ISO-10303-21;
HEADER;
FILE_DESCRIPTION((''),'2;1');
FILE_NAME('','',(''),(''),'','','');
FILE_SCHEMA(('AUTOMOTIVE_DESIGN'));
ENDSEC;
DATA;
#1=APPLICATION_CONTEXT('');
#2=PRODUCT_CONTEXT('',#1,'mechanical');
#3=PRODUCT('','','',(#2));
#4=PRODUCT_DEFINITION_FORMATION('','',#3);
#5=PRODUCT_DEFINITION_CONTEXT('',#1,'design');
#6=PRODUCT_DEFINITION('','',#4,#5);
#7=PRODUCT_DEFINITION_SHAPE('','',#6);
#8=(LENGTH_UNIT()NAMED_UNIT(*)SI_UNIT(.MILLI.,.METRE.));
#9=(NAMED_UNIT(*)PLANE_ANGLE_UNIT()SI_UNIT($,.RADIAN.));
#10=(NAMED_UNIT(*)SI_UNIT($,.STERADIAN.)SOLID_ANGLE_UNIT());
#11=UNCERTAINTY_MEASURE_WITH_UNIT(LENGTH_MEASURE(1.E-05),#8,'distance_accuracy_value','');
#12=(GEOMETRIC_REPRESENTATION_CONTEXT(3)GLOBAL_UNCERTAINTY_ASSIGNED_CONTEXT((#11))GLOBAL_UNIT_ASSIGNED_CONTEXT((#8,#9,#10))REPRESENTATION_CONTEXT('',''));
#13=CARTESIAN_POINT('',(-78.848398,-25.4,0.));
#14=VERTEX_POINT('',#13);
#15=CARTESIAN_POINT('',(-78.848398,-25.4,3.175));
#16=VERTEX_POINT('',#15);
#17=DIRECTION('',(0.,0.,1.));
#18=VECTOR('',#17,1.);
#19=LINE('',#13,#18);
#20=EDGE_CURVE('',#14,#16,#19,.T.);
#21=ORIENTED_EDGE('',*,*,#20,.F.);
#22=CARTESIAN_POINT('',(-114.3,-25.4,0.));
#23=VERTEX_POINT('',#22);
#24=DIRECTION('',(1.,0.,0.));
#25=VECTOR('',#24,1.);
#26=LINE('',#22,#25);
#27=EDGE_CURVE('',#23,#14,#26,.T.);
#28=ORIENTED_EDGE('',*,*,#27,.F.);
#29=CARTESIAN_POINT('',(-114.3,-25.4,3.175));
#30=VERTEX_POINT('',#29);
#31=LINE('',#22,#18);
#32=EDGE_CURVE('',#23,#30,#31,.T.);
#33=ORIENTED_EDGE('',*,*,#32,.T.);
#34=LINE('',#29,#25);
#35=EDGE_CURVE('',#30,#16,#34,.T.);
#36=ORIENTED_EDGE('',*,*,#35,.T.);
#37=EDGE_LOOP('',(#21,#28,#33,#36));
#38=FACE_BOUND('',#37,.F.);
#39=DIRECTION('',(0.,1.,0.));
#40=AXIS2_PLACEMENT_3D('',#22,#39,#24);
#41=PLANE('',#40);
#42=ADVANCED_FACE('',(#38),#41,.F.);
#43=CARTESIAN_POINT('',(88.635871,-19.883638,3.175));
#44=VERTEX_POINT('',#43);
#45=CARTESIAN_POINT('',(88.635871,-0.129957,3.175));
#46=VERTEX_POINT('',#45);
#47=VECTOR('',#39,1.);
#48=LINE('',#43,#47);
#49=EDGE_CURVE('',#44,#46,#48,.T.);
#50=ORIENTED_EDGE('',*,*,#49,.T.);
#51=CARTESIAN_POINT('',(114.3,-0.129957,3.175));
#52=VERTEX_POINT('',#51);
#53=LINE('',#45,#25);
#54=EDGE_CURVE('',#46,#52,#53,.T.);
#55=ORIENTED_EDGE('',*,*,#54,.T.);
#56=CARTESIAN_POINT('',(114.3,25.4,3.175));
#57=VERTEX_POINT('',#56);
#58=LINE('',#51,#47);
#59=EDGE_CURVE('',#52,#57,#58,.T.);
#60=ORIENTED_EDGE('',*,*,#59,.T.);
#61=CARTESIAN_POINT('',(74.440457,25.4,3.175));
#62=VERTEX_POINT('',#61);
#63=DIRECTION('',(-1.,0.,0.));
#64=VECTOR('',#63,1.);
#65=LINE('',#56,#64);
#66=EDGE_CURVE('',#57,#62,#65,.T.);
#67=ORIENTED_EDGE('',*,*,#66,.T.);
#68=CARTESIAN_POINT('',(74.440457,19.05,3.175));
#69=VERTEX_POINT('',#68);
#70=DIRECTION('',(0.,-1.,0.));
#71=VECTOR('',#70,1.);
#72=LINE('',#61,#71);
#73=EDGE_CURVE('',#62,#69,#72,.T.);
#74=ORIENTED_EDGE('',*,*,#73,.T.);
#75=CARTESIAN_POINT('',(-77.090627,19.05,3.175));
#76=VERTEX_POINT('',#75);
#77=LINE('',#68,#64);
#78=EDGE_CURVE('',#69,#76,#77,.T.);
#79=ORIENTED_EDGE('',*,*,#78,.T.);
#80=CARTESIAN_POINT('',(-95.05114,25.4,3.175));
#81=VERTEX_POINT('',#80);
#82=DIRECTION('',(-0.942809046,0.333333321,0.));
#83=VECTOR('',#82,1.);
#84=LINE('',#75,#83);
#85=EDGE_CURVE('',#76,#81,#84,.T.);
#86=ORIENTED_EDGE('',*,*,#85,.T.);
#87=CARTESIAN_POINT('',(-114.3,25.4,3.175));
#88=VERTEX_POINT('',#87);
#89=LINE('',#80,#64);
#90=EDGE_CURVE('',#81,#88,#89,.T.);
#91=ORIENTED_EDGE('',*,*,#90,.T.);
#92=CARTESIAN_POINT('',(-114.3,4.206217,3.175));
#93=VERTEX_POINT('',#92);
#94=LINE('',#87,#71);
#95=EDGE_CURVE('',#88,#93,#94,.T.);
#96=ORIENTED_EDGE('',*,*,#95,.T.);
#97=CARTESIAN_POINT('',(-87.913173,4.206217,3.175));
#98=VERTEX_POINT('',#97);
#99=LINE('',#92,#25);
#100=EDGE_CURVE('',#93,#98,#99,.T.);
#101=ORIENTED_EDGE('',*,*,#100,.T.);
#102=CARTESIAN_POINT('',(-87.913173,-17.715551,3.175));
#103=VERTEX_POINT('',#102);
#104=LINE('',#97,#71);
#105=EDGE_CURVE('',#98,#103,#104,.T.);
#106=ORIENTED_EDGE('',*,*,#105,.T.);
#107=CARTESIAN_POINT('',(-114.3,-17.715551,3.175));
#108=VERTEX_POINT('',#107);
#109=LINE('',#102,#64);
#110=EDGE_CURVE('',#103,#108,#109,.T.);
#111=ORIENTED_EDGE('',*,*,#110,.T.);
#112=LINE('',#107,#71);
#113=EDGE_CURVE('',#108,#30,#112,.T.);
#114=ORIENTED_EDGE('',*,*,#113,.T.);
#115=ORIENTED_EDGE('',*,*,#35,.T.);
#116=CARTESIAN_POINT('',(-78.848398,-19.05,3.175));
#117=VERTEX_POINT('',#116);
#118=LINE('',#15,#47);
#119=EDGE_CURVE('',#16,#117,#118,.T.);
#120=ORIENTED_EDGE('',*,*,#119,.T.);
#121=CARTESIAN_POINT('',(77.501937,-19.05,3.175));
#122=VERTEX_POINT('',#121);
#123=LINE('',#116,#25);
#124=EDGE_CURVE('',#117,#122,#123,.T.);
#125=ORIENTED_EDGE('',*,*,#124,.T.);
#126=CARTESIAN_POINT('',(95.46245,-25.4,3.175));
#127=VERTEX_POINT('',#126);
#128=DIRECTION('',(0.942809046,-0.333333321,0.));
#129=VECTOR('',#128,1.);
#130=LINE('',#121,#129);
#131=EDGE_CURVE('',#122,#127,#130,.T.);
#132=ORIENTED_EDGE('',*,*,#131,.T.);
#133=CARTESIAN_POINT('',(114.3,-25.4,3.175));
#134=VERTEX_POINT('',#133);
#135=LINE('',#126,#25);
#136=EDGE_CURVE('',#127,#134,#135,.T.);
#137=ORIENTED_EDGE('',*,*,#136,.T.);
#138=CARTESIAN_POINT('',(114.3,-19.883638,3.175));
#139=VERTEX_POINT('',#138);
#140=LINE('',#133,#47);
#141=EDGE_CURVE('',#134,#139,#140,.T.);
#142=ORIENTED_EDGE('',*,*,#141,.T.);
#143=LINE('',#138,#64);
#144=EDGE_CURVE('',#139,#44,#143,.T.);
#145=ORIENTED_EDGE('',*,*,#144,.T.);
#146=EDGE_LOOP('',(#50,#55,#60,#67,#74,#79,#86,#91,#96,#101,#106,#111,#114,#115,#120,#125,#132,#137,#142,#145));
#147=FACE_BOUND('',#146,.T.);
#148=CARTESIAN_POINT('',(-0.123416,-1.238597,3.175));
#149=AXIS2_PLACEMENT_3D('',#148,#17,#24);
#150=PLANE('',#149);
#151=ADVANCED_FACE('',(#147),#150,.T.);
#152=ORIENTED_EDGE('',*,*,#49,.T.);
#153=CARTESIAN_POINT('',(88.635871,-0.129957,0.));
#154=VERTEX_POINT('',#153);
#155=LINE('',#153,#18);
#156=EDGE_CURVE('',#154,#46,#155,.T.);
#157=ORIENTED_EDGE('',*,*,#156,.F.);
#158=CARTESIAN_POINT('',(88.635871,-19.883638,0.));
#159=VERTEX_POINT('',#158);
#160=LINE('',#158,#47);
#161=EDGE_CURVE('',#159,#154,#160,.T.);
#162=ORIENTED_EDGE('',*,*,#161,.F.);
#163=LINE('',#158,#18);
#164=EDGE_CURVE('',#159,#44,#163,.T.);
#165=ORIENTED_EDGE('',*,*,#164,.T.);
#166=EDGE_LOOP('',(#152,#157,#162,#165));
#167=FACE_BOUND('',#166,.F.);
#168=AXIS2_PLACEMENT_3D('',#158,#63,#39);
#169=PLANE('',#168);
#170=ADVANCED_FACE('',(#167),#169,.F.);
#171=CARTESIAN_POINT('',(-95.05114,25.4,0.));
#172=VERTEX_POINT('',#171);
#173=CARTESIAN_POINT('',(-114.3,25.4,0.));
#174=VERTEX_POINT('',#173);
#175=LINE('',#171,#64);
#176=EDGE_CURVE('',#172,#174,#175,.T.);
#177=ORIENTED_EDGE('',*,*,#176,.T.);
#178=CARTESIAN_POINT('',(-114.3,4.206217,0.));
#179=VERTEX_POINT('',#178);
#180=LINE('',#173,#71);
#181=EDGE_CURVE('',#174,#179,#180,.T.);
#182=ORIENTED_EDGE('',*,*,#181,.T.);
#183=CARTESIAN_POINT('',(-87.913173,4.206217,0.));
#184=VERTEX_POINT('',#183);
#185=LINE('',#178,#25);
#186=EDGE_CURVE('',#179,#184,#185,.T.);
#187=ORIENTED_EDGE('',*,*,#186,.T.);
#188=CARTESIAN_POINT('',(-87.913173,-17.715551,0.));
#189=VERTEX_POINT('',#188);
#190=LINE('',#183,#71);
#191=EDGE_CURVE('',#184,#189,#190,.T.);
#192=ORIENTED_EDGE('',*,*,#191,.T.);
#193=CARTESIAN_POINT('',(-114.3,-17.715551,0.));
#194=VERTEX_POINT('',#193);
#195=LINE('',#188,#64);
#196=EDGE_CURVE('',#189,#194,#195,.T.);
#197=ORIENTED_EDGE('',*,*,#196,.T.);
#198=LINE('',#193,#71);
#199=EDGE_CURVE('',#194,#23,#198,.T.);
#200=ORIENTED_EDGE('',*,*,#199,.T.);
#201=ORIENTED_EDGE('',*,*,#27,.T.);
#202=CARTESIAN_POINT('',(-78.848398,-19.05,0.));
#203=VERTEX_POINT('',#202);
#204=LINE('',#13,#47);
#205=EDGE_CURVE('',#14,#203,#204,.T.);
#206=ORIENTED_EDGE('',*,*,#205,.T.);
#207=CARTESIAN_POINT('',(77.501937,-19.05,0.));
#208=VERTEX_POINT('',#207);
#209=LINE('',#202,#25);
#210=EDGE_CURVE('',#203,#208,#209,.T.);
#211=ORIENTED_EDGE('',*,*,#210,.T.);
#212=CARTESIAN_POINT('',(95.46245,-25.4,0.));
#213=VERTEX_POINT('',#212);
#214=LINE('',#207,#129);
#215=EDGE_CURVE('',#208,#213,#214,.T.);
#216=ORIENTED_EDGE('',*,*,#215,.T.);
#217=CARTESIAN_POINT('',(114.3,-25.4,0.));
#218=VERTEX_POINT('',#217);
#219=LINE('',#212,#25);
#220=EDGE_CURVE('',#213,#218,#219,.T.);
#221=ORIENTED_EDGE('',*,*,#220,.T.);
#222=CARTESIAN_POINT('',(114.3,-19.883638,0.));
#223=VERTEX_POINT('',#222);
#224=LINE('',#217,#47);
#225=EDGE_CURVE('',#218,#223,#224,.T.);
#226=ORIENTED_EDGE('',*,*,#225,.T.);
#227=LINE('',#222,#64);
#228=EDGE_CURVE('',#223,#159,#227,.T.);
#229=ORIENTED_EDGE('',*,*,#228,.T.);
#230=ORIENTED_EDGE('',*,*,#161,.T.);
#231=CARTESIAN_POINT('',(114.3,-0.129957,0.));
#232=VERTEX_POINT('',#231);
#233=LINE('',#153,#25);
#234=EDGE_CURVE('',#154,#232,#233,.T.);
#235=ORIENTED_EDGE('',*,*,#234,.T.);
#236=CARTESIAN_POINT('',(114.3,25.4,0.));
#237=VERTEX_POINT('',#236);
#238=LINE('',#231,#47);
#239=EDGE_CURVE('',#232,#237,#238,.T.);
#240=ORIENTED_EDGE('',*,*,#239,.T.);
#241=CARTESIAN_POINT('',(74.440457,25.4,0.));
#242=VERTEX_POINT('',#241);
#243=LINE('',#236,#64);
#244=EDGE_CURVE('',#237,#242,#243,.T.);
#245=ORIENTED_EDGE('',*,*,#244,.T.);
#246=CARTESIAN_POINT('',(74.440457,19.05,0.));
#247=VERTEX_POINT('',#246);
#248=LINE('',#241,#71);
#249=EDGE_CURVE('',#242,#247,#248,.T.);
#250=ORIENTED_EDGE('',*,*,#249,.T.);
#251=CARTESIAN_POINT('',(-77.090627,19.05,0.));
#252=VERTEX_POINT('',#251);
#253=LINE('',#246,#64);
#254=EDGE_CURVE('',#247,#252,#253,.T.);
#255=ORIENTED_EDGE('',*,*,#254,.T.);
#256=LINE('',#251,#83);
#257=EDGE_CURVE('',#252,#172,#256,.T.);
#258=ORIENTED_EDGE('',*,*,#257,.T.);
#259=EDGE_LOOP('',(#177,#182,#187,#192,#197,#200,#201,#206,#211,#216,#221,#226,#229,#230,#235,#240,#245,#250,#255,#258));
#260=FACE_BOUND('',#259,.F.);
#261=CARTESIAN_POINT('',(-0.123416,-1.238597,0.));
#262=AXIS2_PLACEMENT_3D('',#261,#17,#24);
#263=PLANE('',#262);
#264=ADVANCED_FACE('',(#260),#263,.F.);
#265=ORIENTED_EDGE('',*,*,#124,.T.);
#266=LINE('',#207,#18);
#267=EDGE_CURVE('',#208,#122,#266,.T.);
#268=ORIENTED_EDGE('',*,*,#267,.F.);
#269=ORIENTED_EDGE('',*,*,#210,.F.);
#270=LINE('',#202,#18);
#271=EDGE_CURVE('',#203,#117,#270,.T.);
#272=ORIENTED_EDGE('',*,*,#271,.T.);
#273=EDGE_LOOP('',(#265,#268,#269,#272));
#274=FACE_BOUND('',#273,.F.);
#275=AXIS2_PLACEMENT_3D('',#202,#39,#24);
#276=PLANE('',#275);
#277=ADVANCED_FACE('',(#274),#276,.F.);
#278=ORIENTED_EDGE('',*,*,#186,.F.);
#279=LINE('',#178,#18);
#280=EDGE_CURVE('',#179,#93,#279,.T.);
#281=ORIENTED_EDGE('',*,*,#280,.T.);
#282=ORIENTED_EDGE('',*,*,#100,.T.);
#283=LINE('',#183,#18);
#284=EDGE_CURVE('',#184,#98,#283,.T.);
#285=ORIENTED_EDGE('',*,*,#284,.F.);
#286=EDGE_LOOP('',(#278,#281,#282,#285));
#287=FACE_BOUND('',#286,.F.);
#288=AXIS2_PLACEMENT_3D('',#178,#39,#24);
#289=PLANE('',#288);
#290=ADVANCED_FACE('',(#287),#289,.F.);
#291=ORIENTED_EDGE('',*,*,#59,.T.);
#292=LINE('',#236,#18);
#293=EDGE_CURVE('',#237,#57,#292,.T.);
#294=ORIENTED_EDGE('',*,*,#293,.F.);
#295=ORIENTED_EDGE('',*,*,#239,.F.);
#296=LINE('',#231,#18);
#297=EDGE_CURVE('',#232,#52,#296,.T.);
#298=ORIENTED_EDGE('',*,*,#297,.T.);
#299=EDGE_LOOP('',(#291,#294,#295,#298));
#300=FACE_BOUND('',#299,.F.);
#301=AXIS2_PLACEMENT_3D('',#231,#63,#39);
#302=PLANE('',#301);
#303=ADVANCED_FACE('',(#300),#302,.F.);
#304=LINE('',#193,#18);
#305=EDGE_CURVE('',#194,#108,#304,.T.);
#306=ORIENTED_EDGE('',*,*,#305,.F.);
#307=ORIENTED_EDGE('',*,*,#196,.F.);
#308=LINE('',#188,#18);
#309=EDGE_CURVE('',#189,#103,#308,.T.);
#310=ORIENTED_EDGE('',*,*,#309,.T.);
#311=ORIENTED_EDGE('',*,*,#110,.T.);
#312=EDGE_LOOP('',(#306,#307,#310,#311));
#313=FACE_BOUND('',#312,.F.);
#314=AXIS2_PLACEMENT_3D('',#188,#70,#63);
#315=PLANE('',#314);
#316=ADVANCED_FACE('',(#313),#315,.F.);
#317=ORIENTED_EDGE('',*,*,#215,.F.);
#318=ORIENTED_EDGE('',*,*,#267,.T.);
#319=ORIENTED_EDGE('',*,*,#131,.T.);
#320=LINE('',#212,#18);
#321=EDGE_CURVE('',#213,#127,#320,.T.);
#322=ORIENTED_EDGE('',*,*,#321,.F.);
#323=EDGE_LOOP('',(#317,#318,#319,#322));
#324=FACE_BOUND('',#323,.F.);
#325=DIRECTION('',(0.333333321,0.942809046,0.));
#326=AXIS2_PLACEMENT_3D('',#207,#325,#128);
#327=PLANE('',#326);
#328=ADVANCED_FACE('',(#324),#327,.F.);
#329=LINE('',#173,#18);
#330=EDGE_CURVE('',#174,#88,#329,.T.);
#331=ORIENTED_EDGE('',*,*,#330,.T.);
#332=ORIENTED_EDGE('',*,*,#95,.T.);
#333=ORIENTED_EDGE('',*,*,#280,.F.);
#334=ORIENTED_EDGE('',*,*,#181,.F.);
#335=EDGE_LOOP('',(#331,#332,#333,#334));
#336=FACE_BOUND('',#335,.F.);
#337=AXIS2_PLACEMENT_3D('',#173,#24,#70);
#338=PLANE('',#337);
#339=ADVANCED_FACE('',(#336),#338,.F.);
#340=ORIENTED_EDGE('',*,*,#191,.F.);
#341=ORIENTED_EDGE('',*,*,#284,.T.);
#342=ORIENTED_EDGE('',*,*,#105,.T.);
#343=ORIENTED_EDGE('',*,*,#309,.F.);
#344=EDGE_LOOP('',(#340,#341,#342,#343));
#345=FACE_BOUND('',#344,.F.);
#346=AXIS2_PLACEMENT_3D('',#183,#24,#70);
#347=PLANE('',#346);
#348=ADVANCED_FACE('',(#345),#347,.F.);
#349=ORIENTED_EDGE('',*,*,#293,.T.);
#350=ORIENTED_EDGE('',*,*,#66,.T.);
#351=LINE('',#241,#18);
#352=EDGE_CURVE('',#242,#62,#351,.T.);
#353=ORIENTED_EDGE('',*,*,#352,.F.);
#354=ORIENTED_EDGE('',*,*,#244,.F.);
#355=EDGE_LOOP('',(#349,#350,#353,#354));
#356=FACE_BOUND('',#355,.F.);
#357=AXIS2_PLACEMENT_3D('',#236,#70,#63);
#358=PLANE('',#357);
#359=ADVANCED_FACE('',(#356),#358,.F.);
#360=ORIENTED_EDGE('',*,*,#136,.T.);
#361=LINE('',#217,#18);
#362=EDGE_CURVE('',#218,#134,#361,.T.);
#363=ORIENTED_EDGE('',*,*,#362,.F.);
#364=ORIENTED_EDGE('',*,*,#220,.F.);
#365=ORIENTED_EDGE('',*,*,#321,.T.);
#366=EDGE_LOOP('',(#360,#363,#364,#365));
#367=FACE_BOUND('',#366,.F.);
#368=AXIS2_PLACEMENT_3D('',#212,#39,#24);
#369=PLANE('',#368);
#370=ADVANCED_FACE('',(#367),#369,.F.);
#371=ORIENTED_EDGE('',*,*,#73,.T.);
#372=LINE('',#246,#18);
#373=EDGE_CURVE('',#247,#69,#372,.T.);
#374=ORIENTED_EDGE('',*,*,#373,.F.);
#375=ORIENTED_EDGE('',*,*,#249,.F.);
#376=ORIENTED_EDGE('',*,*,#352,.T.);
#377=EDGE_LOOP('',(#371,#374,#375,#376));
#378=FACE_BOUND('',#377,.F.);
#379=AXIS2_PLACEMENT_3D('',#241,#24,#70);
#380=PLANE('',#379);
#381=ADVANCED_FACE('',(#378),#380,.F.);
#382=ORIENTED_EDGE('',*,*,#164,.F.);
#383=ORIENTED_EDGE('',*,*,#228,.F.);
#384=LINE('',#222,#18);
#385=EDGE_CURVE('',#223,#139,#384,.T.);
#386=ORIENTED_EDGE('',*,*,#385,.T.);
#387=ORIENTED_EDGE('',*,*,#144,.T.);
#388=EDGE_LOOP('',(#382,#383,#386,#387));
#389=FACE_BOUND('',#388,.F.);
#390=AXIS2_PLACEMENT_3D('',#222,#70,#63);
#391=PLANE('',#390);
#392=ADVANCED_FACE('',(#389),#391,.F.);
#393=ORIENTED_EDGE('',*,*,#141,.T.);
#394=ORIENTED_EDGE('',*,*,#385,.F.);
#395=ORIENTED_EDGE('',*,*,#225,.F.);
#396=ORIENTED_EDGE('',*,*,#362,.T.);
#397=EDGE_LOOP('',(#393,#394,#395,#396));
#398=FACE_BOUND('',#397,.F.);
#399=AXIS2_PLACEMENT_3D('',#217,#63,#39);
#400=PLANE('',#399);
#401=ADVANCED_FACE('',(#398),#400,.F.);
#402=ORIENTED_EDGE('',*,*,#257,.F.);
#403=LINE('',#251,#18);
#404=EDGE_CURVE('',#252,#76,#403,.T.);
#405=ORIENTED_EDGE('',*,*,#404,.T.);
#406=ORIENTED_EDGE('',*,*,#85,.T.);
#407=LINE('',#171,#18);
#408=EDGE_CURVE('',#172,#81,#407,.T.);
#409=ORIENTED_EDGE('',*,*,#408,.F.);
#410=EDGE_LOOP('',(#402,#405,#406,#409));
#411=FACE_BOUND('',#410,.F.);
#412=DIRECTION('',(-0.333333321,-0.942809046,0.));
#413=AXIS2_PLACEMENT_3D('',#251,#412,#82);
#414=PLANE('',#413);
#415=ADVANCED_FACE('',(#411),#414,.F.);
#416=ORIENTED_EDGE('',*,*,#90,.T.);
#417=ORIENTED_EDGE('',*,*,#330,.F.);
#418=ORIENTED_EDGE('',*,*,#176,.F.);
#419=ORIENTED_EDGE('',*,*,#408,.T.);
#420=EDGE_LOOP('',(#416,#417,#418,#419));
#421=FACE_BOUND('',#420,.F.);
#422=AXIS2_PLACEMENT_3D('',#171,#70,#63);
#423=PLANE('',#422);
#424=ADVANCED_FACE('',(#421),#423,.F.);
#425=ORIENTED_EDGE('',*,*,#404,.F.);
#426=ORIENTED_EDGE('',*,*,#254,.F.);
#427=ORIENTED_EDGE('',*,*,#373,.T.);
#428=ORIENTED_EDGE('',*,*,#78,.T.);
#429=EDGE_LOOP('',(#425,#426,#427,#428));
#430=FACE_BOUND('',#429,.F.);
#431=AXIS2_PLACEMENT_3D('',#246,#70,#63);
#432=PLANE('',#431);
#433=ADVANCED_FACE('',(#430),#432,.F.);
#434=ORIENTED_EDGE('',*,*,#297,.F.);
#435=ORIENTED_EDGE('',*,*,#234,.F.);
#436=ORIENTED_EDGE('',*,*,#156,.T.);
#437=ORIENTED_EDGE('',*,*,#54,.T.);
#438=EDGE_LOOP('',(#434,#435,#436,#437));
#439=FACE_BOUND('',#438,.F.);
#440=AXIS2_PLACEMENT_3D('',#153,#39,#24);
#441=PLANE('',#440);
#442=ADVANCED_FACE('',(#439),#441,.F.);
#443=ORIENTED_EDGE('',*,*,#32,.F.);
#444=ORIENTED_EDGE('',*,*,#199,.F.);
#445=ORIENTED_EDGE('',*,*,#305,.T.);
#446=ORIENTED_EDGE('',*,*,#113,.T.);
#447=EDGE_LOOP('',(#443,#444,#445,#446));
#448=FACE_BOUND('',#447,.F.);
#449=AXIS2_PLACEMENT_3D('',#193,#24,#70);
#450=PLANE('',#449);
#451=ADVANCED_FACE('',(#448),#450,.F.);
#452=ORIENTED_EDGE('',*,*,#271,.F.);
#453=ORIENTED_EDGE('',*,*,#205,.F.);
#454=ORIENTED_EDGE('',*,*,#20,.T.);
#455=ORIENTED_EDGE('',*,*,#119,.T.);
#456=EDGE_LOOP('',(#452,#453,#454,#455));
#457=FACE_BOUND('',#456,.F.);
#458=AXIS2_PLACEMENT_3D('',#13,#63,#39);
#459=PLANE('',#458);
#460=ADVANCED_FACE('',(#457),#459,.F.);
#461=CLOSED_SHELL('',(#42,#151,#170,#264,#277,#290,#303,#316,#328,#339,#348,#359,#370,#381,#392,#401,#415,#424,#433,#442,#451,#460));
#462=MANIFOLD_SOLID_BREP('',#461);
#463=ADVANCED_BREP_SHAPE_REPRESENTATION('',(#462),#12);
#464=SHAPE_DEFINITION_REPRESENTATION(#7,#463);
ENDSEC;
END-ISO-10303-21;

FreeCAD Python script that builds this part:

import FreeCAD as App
import Part
import Sketcher
from FreeCAD import Vector
Q = App.Units.Quantity


def add_polygon(sketch, points):
    """Adds a closed chain of lines whose ends are joined by coincident constraints."""
    first, n = sketch.GeometryCount, len(points)
    for a, b in zip(points, points[1:] + points[:1]):
        sketch.addGeometry(Part.LineSegment(App.Vector(*a, 0), App.Vector(*b, 0)), False)
    for i in range(n):
        sketch.addConstraint(Sketcher.Constraint("Coincident", first + i, 2, first + (i + 1) % n, 1))

doc = App.newDocument("Part")
params = doc.addObject("Spreadsheet::Sheet", "Params")
for row, (alias, value) in enumerate([
    ("sketch1_height", "0.25 in"),
    ("sketch1_length", "0.75 in"),
    ("pad1_length", "0.125 in"),
], start=1):
    params.set(f"A{row}", alias)
    params.set(f"B{row}", "=" + value)
    params.setAlias(f"B{row}", alias)

body = doc.addObject("PartDesign::Body", "Body")

# Sketch on XY plane
sketch1 = body.newObject("Sketcher::SketchObject", "Sketch")
sketch1.AttachmentSupport = (doc.getObject("XY_Plane"), [""])
sketch1.MapMode = "FlatFace"
add_polygon(sketch1, [(114, 0), (114, 25), (74, 25), (74, 19), (-77, 19), (-95, 25), (-114, 25), (-114, 4), (-88, 4), (-88, -18), (-114, -18), (-114, -25), (-79, -25), (-79, -19), (78, -19), (95, -25), (114, -25), (114, -20), (89, -20), (89, 0)])  # lines 0-19
sketch1.addConstraint([
    Sketcher.Constraint("Vertical", 0),
    Sketcher.Constraint("Horizontal", 1),
    Sketcher.Constraint("Vertical", 2),
    Sketcher.Constraint("Horizontal", 3),
    Sketcher.Constraint("Horizontal", 5),
    Sketcher.Constraint("Vertical", 6),
    Sketcher.Constraint("Horizontal", 7),
    Sketcher.Constraint("Vertical", 8),
    Sketcher.Constraint("Horizontal", 9),
    Sketcher.Constraint("Vertical", 10),
    Sketcher.Constraint("Horizontal", 11),
    Sketcher.Constraint("Vertical", 12),
    Sketcher.Constraint("Horizontal", 13),
    Sketcher.Constraint("Horizontal", 15),
    Sketcher.Constraint("Vertical", 16),
    Sketcher.Constraint("Horizontal", 17),
    Sketcher.Constraint("Vertical", 18),
    Sketcher.Constraint("Horizontal", 19),
    Sketcher.Constraint("Symmetric", 0, 2, 10, 2, -1, 1),
    Sketcher.Constraint("Symmetric", 5, 2, 15, 2, -1, 1),
    Sketcher.Constraint("Symmetric", 0, 2, 5, 2, -2),
    Sketcher.Constraint("Parallel", 4, 14),
    Sketcher.Constraint("Equal", 2, 12),
    Sketcher.Constraint("DistanceY", -1, 1, 0, 2, Q("1 in")),
    Sketcher.Constraint("DistanceX", 5, 2, 0, 2, Q("9 in")),
    Sketcher.Constraint("DistanceY", 2, 2, 2, 1, Q("0.25 in")),
    Sketcher.Constraint("Distance", 4, Q("0.75 in")),
    Sketcher.Constraint("DistanceX", 11, 1, 11, 2, 35.451602),
    Sketcher.Constraint("DistanceX", 5, 2, 5, 1, 19.24886),
    Sketcher.Constraint("DistanceX", 15, 1, 15, 2, 18.83755),
    Sketcher.Constraint("DistanceX", 17, 2, 17, 1, 25.664129),
    Sketcher.Constraint("DistanceY", 8, 2, 8, 1, 21.921768),
    Sketcher.Constraint("DistanceY", 10, 2, 10, 1, 7.684449),
    Sketcher.Constraint("DistanceY", 16, 1, 16, 2, 5.516362),
    Sketcher.Constraint("DistanceY", 18, 1, 18, 2, 19.753681),
    Sketcher.Constraint("DistanceX", 1, 2, 1, 1, 39.859543),
    Sketcher.Constraint("DistanceX", 7, 1, 7, 2, 26.386827),
])
sketch1.setExpression("Constraints[45]", "Params.sketch1_height")
sketch1.setExpression("Constraints[46]", "Params.sketch1_length")
pad1 = body.newObject("PartDesign::Pad", "Pad")
pad1.Profile = sketch1
pad1.setExpression("Length", "Params.pad1_length")

doc.recompute()
